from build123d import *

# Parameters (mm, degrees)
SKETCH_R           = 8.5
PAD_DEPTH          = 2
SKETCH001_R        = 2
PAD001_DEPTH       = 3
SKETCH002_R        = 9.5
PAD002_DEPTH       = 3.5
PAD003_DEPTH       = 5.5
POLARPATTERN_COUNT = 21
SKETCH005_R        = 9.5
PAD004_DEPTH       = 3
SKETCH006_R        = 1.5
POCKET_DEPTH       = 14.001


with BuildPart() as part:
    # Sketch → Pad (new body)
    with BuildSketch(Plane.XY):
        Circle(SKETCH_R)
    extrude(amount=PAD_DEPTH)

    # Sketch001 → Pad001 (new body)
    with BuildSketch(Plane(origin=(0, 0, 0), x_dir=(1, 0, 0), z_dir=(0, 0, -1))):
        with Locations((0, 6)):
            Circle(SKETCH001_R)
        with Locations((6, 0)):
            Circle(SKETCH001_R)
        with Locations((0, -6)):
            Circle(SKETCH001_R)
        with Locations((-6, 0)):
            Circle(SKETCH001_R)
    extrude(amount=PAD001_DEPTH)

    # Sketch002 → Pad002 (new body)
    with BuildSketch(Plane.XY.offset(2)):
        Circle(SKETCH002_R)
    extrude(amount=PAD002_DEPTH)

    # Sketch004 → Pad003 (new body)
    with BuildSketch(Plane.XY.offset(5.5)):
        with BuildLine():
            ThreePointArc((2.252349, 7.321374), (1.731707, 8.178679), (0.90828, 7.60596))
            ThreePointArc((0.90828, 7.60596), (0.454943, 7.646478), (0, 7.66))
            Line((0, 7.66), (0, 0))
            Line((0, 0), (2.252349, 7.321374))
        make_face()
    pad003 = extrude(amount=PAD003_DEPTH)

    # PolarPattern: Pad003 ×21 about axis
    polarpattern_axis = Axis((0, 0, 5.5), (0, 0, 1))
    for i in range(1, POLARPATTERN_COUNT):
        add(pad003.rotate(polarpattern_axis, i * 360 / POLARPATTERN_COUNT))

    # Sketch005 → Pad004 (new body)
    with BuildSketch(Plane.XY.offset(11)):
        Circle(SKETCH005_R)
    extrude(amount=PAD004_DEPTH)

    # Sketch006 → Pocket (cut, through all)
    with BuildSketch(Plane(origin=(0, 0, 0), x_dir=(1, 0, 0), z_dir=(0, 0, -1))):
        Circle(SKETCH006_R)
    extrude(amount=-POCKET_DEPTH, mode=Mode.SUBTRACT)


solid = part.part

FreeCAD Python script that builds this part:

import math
import FreeCAD as App
import Part
import Sketcher
from FreeCAD import Vector
Q = App.Units.Quantity

doc = App.newDocument("Part")
body = doc.addObject("PartDesign::Body", "Body")

sketch1 = doc.addObject("Sketcher::SketchObject", "Sketch")
body.addObject(sketch1)
sketch1.AttachmentSupport = (doc.XY_Plane, [""])
sketch1.MapMode = "FlatFace"
sketch1.addGeometry(Part.Circle(Vector(0, 0, 0), Vector(0, 0, 1), 8.5), False)
sketch1.addConstraint([
    Sketcher.Constraint("Coincident", 0, 3, -1, 1),
    Sketcher.Constraint("Diameter", 0, 17.0),
])
pad1 = doc.addObject("PartDesign::Pad", "Pad")
body.addObject(pad1)
pad1.Profile = sketch1
pad1.Length = 2

sketch2 = doc.addObject("Sketcher::SketchObject", "Sketch001")
body.addObject(sketch2)
sketch2.AttachmentSupport = (doc.XY_Plane, [""])
sketch2.MapMode = "FlatFace"
sketch2.addGeometry([
    Part.Circle(Vector(0, -6, 0), Vector(0, 0, 1), 2),
    Part.Circle(Vector(6, 0, 0), Vector(0, 0, 1), 2),
    Part.Circle(Vector(0, 6, 0), Vector(0, 0, 1), 2),
    Part.Circle(Vector(-6, 0, 0), Vector(0, 0, 1), 2),
], False)
sketch2.addConstraint([
    Sketcher.Constraint("Equal", 0, 1),
    Sketcher.Constraint("Equal", 1, 2),
    Sketcher.Constraint("Equal", 2, 3),
    Sketcher.Constraint("Symmetric", 0, 3, 2, 3, -1, 1),
    Sketcher.Constraint("Symmetric", 1, 3, 3, 3, -1, 1),
    Sketcher.Constraint("PointOnObject", 0, 3, -2),
    Sketcher.Constraint("PointOnObject", 1, 3, -1),
    Sketcher.Constraint("Diameter", 0, 4.0),
    Sketcher.Constraint("DistanceY", 0, 3, -1, 1, 6.0),
    Sketcher.Constraint("DistanceX", -1, 1, 1, 3, 6.0),
])
pad2 = doc.addObject("PartDesign::Pad", "Pad001")
body.addObject(pad2)
pad2.Profile = sketch2
pad2.Length = 3
pad2.Reversed = True

sketch3 = doc.addObject("Sketcher::SketchObject", "Sketch002")
body.addObject(sketch3)
sketch3.AttachmentSupport = (doc.XY_Plane, [""])
sketch3.MapMode = "FlatFace"
sketch3.AttachmentOffset = App.Placement(Vector(0, 0, 2), App.Rotation())
sketch3.addGeometry(Part.Circle(Vector(0, 0, 0), Vector(0, 0, 1), 9.5), False)
sketch3.addConstraint([
    Sketcher.Constraint("Coincident", 0, 3, -1, 1),
    Sketcher.Constraint("Diameter", 0, 19.0),
])
pad3 = doc.addObject("PartDesign::Pad", "Pad002")
body.addObject(pad3)
pad3.Profile = sketch3
pad3.Length = 3.5

sketch4 = doc.addObject("Sketcher::SketchObject", "Sketch003")
body.addObject(sketch4)
sketch4.AttachmentSupport = (doc.XY_Plane, [""])
sketch4.MapMode = "FlatFace"
sketch4.AttachmentOffset = App.Placement(Vector(0, 0, 5.5), App.Rotation())
sketch4.addGeometry([
    Part.ArcOfCircle(Part.Circle(Vector(1.589141, 7.505353, 0), Vector(0, 0, 1), 0.688254), math.radians(-15.504404), math.radians(171.59453)),
    Part.ArcOfCircle(Part.Circle(Vector(-0.000002, -0.000041, 0), Vector(0, 0, 1), 7.660041), math.radians(83.190183), math.radians(89.999982)),
    Part.LineSegment(Vector(0, 7.66, 0), Vector(0, 0, 0)),
    Part.LineSegment(Vector(0, 0, 0), Vector(2.252349, 7.321374, 0)),
], False)
sketch4.addConstraint([
    Sketcher.Constraint("Coincident", 0, 2, 1, 1),
    Sketcher.Constraint("Coincident", 1, 2, 2, 1),
    Sketcher.Constraint("Coincident", 2, 2, 3, 1),
    Sketcher.Constraint("Coincident", 3, 2, 0, 1),
    Sketcher.Constraint("Vertical", 2),
    Sketcher.Constraint("Coincident", 2, 2, -1, 1),
    Sketcher.Constraint("Angle", 3, Q("72.899998 deg")),
    Sketcher.Constraint("DistanceY", 2, 2, 2, 1, 7.66),
    Sketcher.Constraint("Distance", 3, 7.66),
    Sketcher.Constraint("Radius", 1, 7.660041),
    Sketcher.Constraint("Radius", 0, 0.688254),
    Sketcher.Constraint("DistanceY", 1, 3, 0, 2, 7.606001),
    Sketcher.Constraint("DistanceX", -1, 1, 0, 3, 1.589141),
])
pad4 = doc.addObject("PartDesign::Pad", "Pad003")
body.addObject(pad4)
pad4.Profile = sketch4
pad4.Length = 5.5
doc.recompute()

polarpattern = doc.addObject("PartDesign::PolarPattern", "PolarPattern")
body.addObject(polarpattern)
polarpattern.Originals = [pad4]
polarpattern.Axis = (doc.Z_Axis, [""])
polarpattern.Angle = 360
polarpattern.Occurrences = 21
body.Tip = polarpattern

sketch5 = doc.addObject("Sketcher::SketchObject", "Sketch004")
body.addObject(sketch5)
sketch5.AttachmentSupport = (doc.XY_Plane, [""])
sketch5.MapMode = "FlatFace"
sketch5.AttachmentOffset = App.Placement(Vector(0, 0, 11), App.Rotation())
sketch5.addGeometry(Part.Circle(Vector(0, 0, 0), Vector(0, 0, 1), 9.5), False)
sketch5.addConstraint([
    Sketcher.Constraint("Coincident", 0, 3, -1, 1),
    Sketcher.Constraint("Diameter", 0, 19.0),
])
pad5 = doc.addObject("PartDesign::Pad", "Pad004")
body.addObject(pad5)
pad5.Profile = sketch5
pad5.Length = 3

sketch6 = doc.addObject("Sketcher::SketchObject", "Sketch005")
body.addObject(sketch6)
sketch6.AttachmentSupport = (doc.XY_Plane, [""])
sketch6.MapMode = "FlatFace"
sketch6.addGeometry(Part.Circle(Vector(0, 0, 0), Vector(0, 0, 1), 1.5), False)
sketch6.addConstraint([
    Sketcher.Constraint("Coincident", 0, 3, -1, 1),
    Sketcher.Constraint("Diameter", 0, 3.0),
])
pocket1 = doc.addObject("PartDesign::Pocket", "Pocket")
body.addObject(pocket1)
pocket1.Profile = sketch6
pocket1.Type = "ThroughAll"
pocket1.Reversed = True

doc.recompute()
